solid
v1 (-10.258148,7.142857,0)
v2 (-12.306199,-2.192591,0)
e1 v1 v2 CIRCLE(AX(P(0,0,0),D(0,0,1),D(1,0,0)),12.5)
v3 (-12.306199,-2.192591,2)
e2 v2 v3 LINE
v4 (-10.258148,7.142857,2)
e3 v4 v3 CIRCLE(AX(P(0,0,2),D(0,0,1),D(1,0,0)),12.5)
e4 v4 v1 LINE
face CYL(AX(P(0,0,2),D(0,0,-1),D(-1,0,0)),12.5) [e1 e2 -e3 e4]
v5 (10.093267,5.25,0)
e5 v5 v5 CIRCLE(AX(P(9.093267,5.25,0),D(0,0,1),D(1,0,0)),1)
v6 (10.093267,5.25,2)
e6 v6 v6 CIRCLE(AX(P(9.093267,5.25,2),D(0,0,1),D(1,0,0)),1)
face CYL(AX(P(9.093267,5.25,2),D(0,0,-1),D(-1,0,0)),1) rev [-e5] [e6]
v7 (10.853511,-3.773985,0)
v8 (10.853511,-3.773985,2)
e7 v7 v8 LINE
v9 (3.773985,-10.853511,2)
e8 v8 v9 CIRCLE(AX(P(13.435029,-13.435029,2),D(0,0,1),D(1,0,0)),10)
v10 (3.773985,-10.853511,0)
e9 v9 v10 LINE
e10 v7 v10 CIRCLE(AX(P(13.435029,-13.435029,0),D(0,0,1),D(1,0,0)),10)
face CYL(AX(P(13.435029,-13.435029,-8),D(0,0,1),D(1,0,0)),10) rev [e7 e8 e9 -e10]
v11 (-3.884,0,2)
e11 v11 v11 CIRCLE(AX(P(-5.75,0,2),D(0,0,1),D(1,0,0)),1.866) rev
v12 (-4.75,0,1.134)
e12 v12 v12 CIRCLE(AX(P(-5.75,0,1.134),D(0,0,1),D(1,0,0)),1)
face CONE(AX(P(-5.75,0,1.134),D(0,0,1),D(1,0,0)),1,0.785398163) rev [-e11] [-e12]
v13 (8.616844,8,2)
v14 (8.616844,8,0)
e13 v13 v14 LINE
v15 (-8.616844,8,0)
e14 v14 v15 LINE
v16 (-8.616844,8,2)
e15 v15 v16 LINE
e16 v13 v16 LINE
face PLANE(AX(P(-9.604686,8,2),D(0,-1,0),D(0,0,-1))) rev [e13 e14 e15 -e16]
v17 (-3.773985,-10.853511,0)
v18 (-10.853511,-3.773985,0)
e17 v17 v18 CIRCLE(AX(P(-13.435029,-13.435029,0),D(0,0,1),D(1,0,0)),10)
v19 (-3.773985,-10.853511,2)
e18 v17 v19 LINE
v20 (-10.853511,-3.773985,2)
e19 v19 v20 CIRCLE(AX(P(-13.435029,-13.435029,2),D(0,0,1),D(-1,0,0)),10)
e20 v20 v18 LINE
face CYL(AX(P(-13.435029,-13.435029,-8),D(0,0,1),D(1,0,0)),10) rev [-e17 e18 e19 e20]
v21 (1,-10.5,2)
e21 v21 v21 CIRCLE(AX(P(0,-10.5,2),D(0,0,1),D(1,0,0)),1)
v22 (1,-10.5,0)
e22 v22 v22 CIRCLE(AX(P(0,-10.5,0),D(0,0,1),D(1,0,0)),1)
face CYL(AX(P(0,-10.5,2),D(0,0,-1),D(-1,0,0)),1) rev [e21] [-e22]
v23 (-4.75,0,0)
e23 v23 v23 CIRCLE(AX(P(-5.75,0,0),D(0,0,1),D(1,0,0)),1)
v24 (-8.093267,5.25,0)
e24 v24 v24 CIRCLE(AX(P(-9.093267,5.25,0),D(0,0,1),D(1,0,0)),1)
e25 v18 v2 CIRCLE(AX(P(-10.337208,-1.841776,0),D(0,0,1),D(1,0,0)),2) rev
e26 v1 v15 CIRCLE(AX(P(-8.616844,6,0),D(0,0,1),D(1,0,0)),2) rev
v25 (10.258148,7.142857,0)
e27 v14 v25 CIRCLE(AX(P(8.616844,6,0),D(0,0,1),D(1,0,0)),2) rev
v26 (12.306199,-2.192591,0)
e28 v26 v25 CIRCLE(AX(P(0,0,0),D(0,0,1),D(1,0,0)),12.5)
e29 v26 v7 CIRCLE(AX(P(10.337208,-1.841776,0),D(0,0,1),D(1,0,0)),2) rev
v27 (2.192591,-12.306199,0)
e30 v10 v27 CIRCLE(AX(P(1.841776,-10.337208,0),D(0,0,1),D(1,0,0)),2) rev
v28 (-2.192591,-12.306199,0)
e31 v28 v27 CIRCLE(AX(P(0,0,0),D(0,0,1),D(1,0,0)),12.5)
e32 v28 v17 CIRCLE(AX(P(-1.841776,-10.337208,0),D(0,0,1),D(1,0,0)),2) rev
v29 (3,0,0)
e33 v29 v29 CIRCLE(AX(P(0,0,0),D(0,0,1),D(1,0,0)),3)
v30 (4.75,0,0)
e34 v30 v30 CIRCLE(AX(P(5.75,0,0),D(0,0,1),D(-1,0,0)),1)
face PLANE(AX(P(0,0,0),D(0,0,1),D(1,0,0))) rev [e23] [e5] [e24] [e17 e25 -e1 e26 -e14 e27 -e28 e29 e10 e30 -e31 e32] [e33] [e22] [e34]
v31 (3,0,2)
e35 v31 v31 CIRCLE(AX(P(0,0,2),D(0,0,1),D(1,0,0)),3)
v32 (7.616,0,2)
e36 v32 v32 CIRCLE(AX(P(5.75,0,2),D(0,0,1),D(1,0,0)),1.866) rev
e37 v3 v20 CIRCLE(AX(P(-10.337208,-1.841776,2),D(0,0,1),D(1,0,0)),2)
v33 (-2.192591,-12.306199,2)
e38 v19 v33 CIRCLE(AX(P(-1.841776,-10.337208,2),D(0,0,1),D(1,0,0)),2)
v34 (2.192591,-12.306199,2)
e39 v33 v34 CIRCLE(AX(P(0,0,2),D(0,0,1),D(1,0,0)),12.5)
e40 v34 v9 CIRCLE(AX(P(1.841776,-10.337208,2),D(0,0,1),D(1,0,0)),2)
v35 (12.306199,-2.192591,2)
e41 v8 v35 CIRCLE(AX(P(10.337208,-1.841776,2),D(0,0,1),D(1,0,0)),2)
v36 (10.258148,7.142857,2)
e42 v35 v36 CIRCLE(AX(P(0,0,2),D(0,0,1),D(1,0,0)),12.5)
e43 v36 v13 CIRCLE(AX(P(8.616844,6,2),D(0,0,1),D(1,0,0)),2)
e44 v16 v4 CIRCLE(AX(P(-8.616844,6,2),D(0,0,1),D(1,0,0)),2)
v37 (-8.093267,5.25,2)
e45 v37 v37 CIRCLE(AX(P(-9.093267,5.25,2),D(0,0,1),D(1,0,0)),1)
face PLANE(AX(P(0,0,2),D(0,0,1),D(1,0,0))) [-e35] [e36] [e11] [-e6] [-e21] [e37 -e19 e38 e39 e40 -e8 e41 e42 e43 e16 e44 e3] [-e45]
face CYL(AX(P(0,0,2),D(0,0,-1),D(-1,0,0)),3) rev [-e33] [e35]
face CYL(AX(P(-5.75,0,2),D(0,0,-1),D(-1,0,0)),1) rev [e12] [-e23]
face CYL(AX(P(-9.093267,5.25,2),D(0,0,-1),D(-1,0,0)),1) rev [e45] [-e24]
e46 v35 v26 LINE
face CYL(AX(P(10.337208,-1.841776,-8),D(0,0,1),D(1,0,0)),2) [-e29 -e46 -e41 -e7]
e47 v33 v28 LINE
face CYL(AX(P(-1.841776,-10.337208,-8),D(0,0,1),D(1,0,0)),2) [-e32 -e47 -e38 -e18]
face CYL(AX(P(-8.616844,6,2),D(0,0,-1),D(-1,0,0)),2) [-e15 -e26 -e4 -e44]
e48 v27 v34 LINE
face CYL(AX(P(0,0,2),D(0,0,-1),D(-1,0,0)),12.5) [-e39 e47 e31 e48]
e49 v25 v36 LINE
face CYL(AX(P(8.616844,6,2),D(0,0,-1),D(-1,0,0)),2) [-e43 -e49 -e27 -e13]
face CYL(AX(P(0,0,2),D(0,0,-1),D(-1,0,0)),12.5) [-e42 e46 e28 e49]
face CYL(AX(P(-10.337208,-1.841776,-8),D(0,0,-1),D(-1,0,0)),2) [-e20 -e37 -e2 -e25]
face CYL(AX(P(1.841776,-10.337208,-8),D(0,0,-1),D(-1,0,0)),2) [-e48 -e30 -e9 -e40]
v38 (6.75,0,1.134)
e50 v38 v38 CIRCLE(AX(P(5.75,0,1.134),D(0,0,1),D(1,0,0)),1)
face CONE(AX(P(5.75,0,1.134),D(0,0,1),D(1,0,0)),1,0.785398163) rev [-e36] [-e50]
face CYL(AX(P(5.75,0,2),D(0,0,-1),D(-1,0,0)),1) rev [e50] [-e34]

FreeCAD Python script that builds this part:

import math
import FreeCAD as App
import Part
import Sketcher


def edges_at(feature, points):
    """Names of the edges that pass closest to the given points."""
    edges = feature.Shape.Edges
    near = lambda p: min(range(len(edges)), key=lambda i: edges[i].distToShape(Part.Vertex(*p))[0])
    return sorted({f"Edge{near(p) + 1}" for p in points})

doc = App.newDocument("Part")
body = doc.addObject("PartDesign::Body", "Body")

# Sketch on XY plane
sketch1 = body.newObject("Sketcher::SketchObject", "Sketch")
sketch1.AttachmentSupport = (doc.getObject("XY_Plane"), [""])
sketch1.MapMode = "FlatFace"
sketch1.addGeometry([
    Part.LineSegment(App.Vector(9.6, 8, 0), App.Vector(-9.6, 8, 0)),  # 0
    Part.ArcOfCircle(Part.Circle(App.Vector(0, 0, 0), App.Vector(0, 0, 1), 12.5), math.radians(140), math.radians(400)),  # 1
    Part.Circle(App.Vector(0, -10.5, 0), App.Vector(0, 0, 1), 1),  # 2
    Part.Circle(App.Vector(5.8, 0, 0), App.Vector(0, 0, 1), 1),  # 3
    Part.Circle(App.Vector(9.1, 5.2, 0), App.Vector(0, 0, 1), 1),  # 4
    Part.Circle(App.Vector(0, 0, 0), App.Vector(0, 0, 1), 3),  # 5
    Part.Circle(App.Vector(-5.8, 0, 0), App.Vector(0, 0, 1), 1),  # 6
    Part.Circle(App.Vector(-9.1, 5.2, 0), App.Vector(0, 0, 1), 1),  # 7
], False)
sketch1.addConstraint([
    Sketcher.Constraint("Coincident", 0, 1, 1, 2),
    Sketcher.Constraint("Coincident", 1, 1, 0, 2),
    Sketcher.Constraint("Horizontal", 0),
    Sketcher.Constraint("Coincident", 1, 3, -1, 1),
    Sketcher.Constraint("Coincident", 5, 3, -1, 1),
    Sketcher.Constraint("Equal", 2, 3),
    Sketcher.Constraint("Equal", 3, 4),
    Sketcher.Constraint("Equal", 4, 6),
    Sketcher.Constraint("Equal", 6, 7),
    Sketcher.Constraint("Symmetric", 3, 3, 6, 3, -1, 1),
    Sketcher.Constraint("Symmetric", 4, 3, 7, 3, -2),
    Sketcher.Constraint("PointOnObject", 2, 3, -2),
    Sketcher.Constraint("PointOnObject", 3, 3, -1),
    Sketcher.Constraint("Diameter", 2, 2.0),
    Sketcher.Constraint("Diameter", 5, 6.0),
    Sketcher.Constraint("Radius", 1, 12.5),
    Sketcher.Constraint("DistanceY", -1, 1, 0, 1, 8.0),
    Sketcher.Constraint("DistanceY", 2, 3, -1, 1, 10.5),
    Sketcher.Constraint("DistanceX", 6, 3, 3, 3, 11.5),
    Sketcher.Constraint("DistanceY", -1, 1, 4, 3, 5.25),
    Sketcher.Constraint("DistanceX", 4, 3, 0, 1, 0.51142),
])
pad1 = body.newObject("PartDesign::Pad", "Pad")
pad1.Profile = sketch1
pad1.Length = 2

# Sketch on XY plane
sketch2 = body.newObject("Sketcher::SketchObject", "Sketch001")
sketch2.AttachmentSupport = (doc.getObject("XY_Plane"), [""])
sketch2.MapMode = "FlatFace"
sketch2.AttachmentOffset = App.Placement(App.Vector(0, 0, -8), App.Rotation())
sketch2.addGeometry([
    Part.ArcOfCircle(Part.Circle(App.Vector(-13, -13, 0), App.Vector(0, 0, 1), 10), math.radians(8), math.radians(82)),
    Part.ArcOfCircle(Part.Circle(App.Vector(0, 0, 0), App.Vector(0, 0, 1), 13), math.radians(-164), math.radians(-106)),
    Part.ArcOfCircle(Part.Circle(App.Vector(13, -13, 0), App.Vector(0, 0, 1), 10), math.radians(98), math.radians(172)),
    Part.ArcOfCircle(Part.Circle(App.Vector(0, 0, 0), App.Vector(0, 0, 1), 13), math.radians(-74), math.radians(-16)),
], False)
sketch2.addConstraint([
    Sketcher.Constraint("Coincident", 0, 1, 1, 2),
    Sketcher.Constraint("Coincident", 1, 1, 0, 2),
    Sketcher.Constraint("Coincident", 2, 1, 3, 2),
    Sketcher.Constraint("Coincident", 3, 1, 2, 2),
    Sketcher.Constraint("Coincident", 1, 3, -1, 1),
    Sketcher.Constraint("Coincident", 3, 3, -1, 1),
    Sketcher.Constraint("Equal", 0, 2),
    Sketcher.Constraint("Equal", 1, 3),
    Sketcher.Constraint("Symmetric", 0, 3, 2, 3, -2),
    Sketcher.Constraint("Radius", 0, 10.0),
    Sketcher.Constraint("Radius", 1, 12.5),
    Sketcher.Constraint("DistanceX", 0, 1, 3, 1, 7.0805),
    Sketcher.Constraint("DistanceX", 0, 3, -1, 1, 13.435029),
])
pocket1 = body.newObject("PartDesign::Pocket", "Pocket")
pocket1.Profile = sketch2
pocket1.Length = 10
pocket1.Reversed = True
doc.recompute()

fillet = body.newObject("PartDesign::Fillet", "Fillet")
fillet.Base = (pocket1, edges_at(pocket1, [
    (-3.54, -11.988, 1),
    (-11.988, -3.54, 1),
    (-9.605, 8, 1),
    (11.988, -3.54, 1),
    (9.605, 8, 1),
    (3.54, -11.988, 1),
]))
fillet.Radius = 2
doc.recompute()

chamfer = body.newObject("PartDesign::Chamfer", "Chamfer")
chamfer.Base = (fillet, edges_at(fillet, [(-6.75, 0, 2), (6.75, 0, 2)]))
chamfer.Size = 0.866

doc.recompute()
